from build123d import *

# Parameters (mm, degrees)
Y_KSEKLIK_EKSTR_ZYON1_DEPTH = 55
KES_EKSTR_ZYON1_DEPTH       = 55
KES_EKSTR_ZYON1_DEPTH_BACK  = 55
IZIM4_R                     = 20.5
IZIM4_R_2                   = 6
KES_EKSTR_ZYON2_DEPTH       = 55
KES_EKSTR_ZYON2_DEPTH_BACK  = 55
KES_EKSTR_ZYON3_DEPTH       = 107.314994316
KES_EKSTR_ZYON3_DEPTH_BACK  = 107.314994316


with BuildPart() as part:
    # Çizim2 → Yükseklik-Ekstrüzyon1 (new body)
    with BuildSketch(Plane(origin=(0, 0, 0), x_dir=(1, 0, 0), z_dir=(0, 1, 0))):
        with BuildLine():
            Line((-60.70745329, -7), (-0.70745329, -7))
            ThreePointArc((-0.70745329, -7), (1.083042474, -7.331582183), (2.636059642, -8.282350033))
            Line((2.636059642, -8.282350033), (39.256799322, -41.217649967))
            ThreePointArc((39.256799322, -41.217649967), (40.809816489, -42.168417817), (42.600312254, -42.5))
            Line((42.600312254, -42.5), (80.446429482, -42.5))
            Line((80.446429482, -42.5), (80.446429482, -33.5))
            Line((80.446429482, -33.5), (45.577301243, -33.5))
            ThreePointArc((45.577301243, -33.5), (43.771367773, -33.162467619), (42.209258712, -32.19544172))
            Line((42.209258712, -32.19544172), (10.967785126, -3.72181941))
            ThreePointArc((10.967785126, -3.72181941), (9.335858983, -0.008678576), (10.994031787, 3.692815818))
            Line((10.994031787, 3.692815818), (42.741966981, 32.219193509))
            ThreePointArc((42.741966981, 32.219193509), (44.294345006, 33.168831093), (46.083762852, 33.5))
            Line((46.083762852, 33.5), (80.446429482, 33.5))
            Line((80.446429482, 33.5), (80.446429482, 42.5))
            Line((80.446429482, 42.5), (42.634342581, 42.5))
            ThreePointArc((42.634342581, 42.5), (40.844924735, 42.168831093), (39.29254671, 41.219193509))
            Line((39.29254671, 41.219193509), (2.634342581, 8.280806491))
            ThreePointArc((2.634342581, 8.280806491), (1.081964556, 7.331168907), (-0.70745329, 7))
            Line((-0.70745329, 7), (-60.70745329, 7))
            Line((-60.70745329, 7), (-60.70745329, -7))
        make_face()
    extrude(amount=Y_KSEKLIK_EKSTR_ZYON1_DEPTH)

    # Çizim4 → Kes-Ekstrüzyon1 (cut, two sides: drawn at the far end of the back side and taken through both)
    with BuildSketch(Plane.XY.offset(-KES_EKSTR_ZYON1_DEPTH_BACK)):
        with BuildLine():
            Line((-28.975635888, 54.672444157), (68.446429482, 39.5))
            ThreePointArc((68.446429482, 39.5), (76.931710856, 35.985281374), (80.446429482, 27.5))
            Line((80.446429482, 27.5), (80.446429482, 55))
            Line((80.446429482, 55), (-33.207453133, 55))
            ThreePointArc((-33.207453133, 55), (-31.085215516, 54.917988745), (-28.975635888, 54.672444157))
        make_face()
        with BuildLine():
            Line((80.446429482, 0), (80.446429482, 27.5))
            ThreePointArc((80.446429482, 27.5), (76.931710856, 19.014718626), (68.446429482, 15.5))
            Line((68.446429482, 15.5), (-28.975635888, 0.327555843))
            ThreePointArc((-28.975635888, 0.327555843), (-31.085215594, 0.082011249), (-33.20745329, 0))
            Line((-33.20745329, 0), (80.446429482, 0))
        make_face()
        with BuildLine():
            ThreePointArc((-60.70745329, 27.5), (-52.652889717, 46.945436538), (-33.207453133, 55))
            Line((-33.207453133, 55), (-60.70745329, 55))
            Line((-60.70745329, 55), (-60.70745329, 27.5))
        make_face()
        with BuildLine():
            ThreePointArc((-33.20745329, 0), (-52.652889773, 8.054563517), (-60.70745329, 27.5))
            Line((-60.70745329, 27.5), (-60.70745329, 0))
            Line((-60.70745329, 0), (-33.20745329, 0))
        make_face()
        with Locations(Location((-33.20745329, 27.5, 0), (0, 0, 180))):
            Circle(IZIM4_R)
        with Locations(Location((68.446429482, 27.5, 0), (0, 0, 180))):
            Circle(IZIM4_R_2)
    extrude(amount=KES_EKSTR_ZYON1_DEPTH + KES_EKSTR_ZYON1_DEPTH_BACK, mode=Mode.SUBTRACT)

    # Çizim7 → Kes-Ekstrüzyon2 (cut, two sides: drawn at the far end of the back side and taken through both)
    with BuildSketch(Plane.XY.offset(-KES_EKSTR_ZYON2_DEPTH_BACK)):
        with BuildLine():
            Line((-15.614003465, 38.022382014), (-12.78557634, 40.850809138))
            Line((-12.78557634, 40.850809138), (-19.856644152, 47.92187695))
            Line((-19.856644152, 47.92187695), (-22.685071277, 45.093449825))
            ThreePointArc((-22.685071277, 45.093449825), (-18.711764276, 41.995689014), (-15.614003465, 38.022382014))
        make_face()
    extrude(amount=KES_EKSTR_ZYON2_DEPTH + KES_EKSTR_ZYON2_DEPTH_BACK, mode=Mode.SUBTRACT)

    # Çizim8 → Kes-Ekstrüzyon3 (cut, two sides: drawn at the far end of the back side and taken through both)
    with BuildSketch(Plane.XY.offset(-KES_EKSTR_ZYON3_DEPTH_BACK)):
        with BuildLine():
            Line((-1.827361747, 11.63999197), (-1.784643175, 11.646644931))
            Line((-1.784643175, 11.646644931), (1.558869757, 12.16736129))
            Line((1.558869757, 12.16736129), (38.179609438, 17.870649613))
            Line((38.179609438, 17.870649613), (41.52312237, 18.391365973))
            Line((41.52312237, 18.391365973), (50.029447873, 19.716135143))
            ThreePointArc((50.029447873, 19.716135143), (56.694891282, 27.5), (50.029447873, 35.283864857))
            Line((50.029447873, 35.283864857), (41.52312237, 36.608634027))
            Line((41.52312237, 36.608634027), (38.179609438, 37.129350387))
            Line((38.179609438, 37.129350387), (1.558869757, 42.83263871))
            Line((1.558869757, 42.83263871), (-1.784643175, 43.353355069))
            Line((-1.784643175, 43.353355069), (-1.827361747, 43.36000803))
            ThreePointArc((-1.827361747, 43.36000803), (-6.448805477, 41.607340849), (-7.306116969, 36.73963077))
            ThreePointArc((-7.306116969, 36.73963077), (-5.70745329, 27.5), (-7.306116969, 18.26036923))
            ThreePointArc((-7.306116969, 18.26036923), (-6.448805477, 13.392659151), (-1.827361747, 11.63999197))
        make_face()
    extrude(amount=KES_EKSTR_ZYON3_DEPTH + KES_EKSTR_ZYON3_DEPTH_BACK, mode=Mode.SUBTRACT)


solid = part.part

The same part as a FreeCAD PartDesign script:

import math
import FreeCAD as App
import Part
import Sketcher

V = App.Vector
Q = App.Units.Quantity

doc = App.newDocument("Part")
body = doc.addObject("PartDesign::Body", "Body")

# Sketch on XZ plane
sketch1 = doc.addObject("Sketcher::SketchObject", "Sketch")
body.addObject(sketch1)
sketch1.AttachmentSupport = (doc.XZ_Plane, [""])
sketch1.MapMode = "FlatFace"
sketch1.addGeometry([
    Part.LineSegment(V(-60.7, 7, 0), V(-0.7, 7, 0)),  # 0
    Part.ArcOfCircle(Part.Circle(V(-0.7, 12, 0), V(0, 0, 1), 5), math.radians(-90), math.radians(-48)),  # 1
    Part.LineSegment(V(2.6, 8.3, 0), V(39.3, 41.2, 0)),  # 2
    Part.ArcOfCircle(Part.Circle(V(42.6, 37.5, 0), V(0, 0, 1), 5), math.radians(90), math.radians(132)),  # 3
    Part.LineSegment(V(42.6, 42.5, 0), V(80.4, 42.5, 0)),  # 4
    Part.LineSegment(V(80.4, 42.5, 0), V(80.4, 33.5, 0)),  # 5
    Part.LineSegment(V(80.4, 33.5, 0), V(45.6, 33.5, 0)),  # 6
    Part.ArcOfCircle(Part.Circle(V(45.6, 28.5, 0), V(0, 0, 1), 5), math.radians(90), math.radians(132)),  # 7
    Part.LineSegment(V(42.2, 32.2, 0), V(11, 3.7, 0)),  # 8
    Part.ArcOfCircle(Part.Circle(V(14.3, 0, 0), V(0, 0, 1), 5), math.radians(132), math.radians(228)),  # 9
    Part.LineSegment(V(11, -3.7, 0), V(42.7, -32.2, 0)),  # 10
    Part.ArcOfCircle(Part.Circle(V(46.1, -28.5, 0), V(0, 0, 1), 5), math.radians(-132), math.radians(-90)),  # 11
    Part.LineSegment(V(46.1, -33.5, 0), V(80.4, -33.5, 0)),  # 12
    Part.LineSegment(V(80.4, -33.5, 0), V(80.4, -42.5, 0)),  # 13
    Part.LineSegment(V(80.4, -42.5, 0), V(42.6, -42.5, 0)),  # 14
    Part.ArcOfCircle(Part.Circle(V(42.6, -37.5, 0), V(0, 0, 1), 5), math.radians(-132), math.radians(-90)),  # 15
    Part.LineSegment(V(39.3, -41.2, 0), V(2.6, -8.3, 0)),  # 16
    Part.ArcOfCircle(Part.Circle(V(-0.7, -12, 0), V(0, 0, 1), 5), math.radians(48), math.radians(90)),  # 17
    Part.LineSegment(V(-0.7, -7, 0), V(-60.7, -7, 0)),  # 18
    Part.LineSegment(V(-60.7, -7, 0), V(-60.7, 7, 0)),  # 19
], False)
sketch1.addConstraint([
    Sketcher.Constraint("Tangent", 0, 2, 1, 1),
    Sketcher.Constraint("Tangent", 1, 2, 2, 1),
    Sketcher.Constraint("Tangent", 2, 2, 3, 2),
    Sketcher.Constraint("Tangent", 3, 1, 4, 1),
    Sketcher.Constraint("Coincident", 4, 2, 5, 1),
    Sketcher.Constraint("Coincident", 5, 2, 6, 1),
    Sketcher.Constraint("Tangent", 6, 2, 7, 1),
    Sketcher.Constraint("Tangent", 7, 2, 8, 1),
    Sketcher.Constraint("Tangent", 8, 2, 9, 1),
    Sketcher.Constraint("Tangent", 9, 2, 10, 1),
    Sketcher.Constraint("Tangent", 10, 2, 11, 1),
    Sketcher.Constraint("Tangent", 11, 2, 12, 1),
    Sketcher.Constraint("Coincident", 12, 2, 13, 1),
    Sketcher.Constraint("Coincident", 13, 2, 14, 1),
    Sketcher.Constraint("Tangent", 14, 2, 15, 2),
    Sketcher.Constraint("Tangent", 15, 1, 16, 1),
    Sketcher.Constraint("Tangent", 16, 2, 17, 1),
    Sketcher.Constraint("Tangent", 17, 2, 18, 1),
    Sketcher.Constraint("Coincident", 18, 2, 19, 1),
    Sketcher.Constraint("Coincident", 19, 2, 0, 1),
    Sketcher.Constraint("Horizontal", 0),
    Sketcher.Constraint("Horizontal", 4),
    Sketcher.Constraint("Vertical", 5),
    Sketcher.Constraint("Horizontal", 6),
    Sketcher.Constraint("Horizontal", 12),
    Sketcher.Constraint("Vertical", 13),
    Sketcher.Constraint("Horizontal", 14),
    Sketcher.Constraint("Horizontal", 18),
    Sketcher.Constraint("Vertical", 19),
    Sketcher.Constraint("Equal", 1, 3),
    Sketcher.Constraint("Equal", 3, 7),
    Sketcher.Constraint("Equal", 7, 9),
    Sketcher.Constraint("Equal", 9, 11),
    Sketcher.Constraint("Equal", 11, 15),
    Sketcher.Constraint("Equal", 15, 17),
    Sketcher.Constraint("Symmetric", 1, 3, 17, 3, -1),
    Sketcher.Constraint("Symmetric", 5, 2, 12, 2, -1),
    Sketcher.Constraint("Parallel", 10, 16),
    Sketcher.Constraint("Equal", 5, 13),
    Sketcher.Constraint("Radius", 1, 5.0),
    Sketcher.Constraint("DistanceX", 0, 1, 0, 2, 60.0),
    Sketcher.Constraint("DistanceY", 5, 2, 5, 1, 9.0),
    Sketcher.Constraint("DistanceY", 19, 1, 19, 2, 14.0),
    Sketcher.Constraint("DistanceY", 11, 3, 7, 3, 57.0),
    Sketcher.Constraint("DistanceX", 6, 2, 6, 1, 34.869128),
    Sketcher.Constraint("DistanceX", -1, 1, 7, 3, 45.577301),
    Sketcher.Constraint("DistanceX", -1, 1, 2, 2, 39.256799),
    Sketcher.Constraint("DistanceY", 1, 2, 2, 2, 32.9353),
    Sketcher.Constraint("DistanceX", 9, 3, 4, 2, 66.110602),
    Sketcher.Constraint("Distance", 10, 42.681209),
    Sketcher.Constraint("DistanceX", 12, 1, 12, 2, 34.362667),
])
pad1 = doc.addObject("PartDesign::Pad", "Pad")
body.addObject(pad1)
pad1.Profile = sketch1
pad1.Length = 55
pad1.Reversed = True

# Sketch on XY plane
sketch2 = doc.addObject("Sketcher::SketchObject", "Sketch001")
body.addObject(sketch2)
sketch2.AttachmentSupport = (doc.XY_Plane, [""])
sketch2.MapMode = "FlatFace"
sketch2.addGeometry([
    Part.LineSegment(V(-29, 54.7, 0), V(68.4, 39.5, 0)),  # 0
    Part.ArcOfCircle(Part.Circle(V(68.4, 27.5, 0), V(0, 0, 1), 12), math.radians(0), math.radians(90)),  # 1
    Part.LineSegment(V(80.4, 27.5, 0), V(80.4, 55, 0)),  # 2
    Part.LineSegment(V(80.4, 55, 0), V(-33.2, 55, 0)),  # 3
    Part.ArcOfCircle(Part.Circle(V(-33.2, 27.5, 0), V(0, 0, 1), 27.5), math.radians(81.15), math.radians(90)),  # 4
    Part.LineSegment(V(80.4, 0, 0), V(80.4, 27.5, 0)),  # 5
    Part.ArcOfCircle(Part.Circle(V(68.4, 27.5, 0), V(0, 0, 1), 12), math.radians(-90), math.radians(0)),  # 6
    Part.LineSegment(V(68.4, 15.5, 0), V(-29, 0.3, 0)),  # 7
    Part.ArcOfCircle(Part.Circle(V(-33.2, 27.5, 0), V(0, 0, 1), 27.5), math.radians(-90), math.radians(-81.15)),  # 8
    Part.LineSegment(V(-33.2, 0, 0), V(80.4, 0, 0)),  # 9
    Part.ArcOfCircle(Part.Circle(V(-33.2, 27.5, 0), V(0, 0, 1), 27.5), math.radians(90), math.radians(180)),  # 10
    Part.LineSegment(V(-33.2, 55, 0), V(-60.7, 55, 0)),  # 11
    Part.LineSegment(V(-60.7, 55, 0), V(-60.7, 27.5, 0)),  # 12
    Part.ArcOfCircle(Part.Circle(V(-33.2, 27.5, 0), V(0, 0, 1), 27.5), math.radians(180), math.radians(270)),  # 13
    Part.LineSegment(V(-60.7, 27.5, 0), V(-60.7, 0, 0)),  # 14
    Part.LineSegment(V(-60.7, 0, 0), V(-33.2, 0, 0)),  # 15
    Part.Circle(V(-33.2, 27.5, 0), V(0, 0, 1), 20.5),  # 16
    Part.Circle(V(68.4, 27.5, 0), V(0, 0, 1), 6),  # 17
], False)
sketch2.addConstraint([
    Sketcher.Constraint("Coincident", 0, 2, 1, 2),
    Sketcher.Constraint("Tangent", 1, 1, 2, 1),
    Sketcher.Constraint("Coincident", 2, 2, 3, 1),
    Sketcher.Constraint("Tangent", 3, 2, 4, 2),
    Sketcher.Constraint("Tangent", 4, 1, 0, 1),
    Sketcher.Constraint("Tangent", 5, 2, 6, 2),
    Sketcher.Constraint("Coincident", 6, 1, 7, 1),
    Sketcher.Constraint("Tangent", 7, 2, 8, 2),
    Sketcher.Constraint("Tangent", 8, 1, 9, 1),
    Sketcher.Constraint("Coincident", 9, 2, 5, 1),
    Sketcher.Constraint("Tangent", 10, 1, 11, 1),
    Sketcher.Constraint("Coincident", 11, 2, 12, 1),
    Sketcher.Constraint("Tangent", 12, 2, 10, 2),
    Sketcher.Constraint("Tangent", 13, 1, 14, 1),
    Sketcher.Constraint("Coincident", 14, 2, 15, 1),
    Sketcher.Constraint("Tangent", 15, 2, 13, 2),
    Sketcher.Constraint("Vertical", 2),
    Sketcher.Constraint("Horizontal", 3),
    Sketcher.Constraint("Vertical", 5),
    Sketcher.Constraint("Horizontal", 9),
    Sketcher.Constraint("Horizontal", 11),
    Sketcher.Constraint("Vertical", 12),
    Sketcher.Constraint("Vertical", 14),
    Sketcher.Constraint("Horizontal", 15),
    Sketcher.Constraint("Coincident", 6, 3, 1, 3),
    Sketcher.Constraint("Coincident", 8, 3, 4, 3),
    Sketcher.Constraint("Coincident", 10, 3, 4, 3),
    Sketcher.Constraint("Coincident", 13, 3, 4, 3),
    Sketcher.Constraint("Coincident", 16, 3, 4, 3),
    Sketcher.Constraint("Coincident", 17, 3, 1, 3),
    Sketcher.Constraint("Equal", 1, 6),
    Sketcher.Constraint("Equal", 4, 8),
    Sketcher.Constraint("Equal", 8, 10),
    Sketcher.Constraint("Equal", 10, 13),
    Sketcher.Constraint("PointOnObject", 8, 1, -1),
    Sketcher.Constraint("Horizontal", 1, 3, 4, 3),
    Sketcher.Constraint("Vertical", 17, 3, 0, 2),
    Sketcher.Constraint("Vertical", 0, 2, 6, 1),
    Sketcher.Constraint("Diameter", 16, 41.0),
    Sketcher.Constraint("Diameter", 17, 12.0),
    Sketcher.Constraint("Radius", 1, 12.0),
    Sketcher.Constraint("Radius", 4, 27.5),
    Sketcher.Constraint("Distance", 0, 98.59646),
    Sketcher.Constraint("DistanceX", -1, 1, 1, 3, 68.446429),
])
pocket1 = doc.addObject("PartDesign::Pocket", "Pocket")
body.addObject(pocket1)
pocket1.Profile = sketch2
pocket1.Type = "ThroughAll"
pocket1.Midplane = True

# Sketch on XY plane
sketch3 = doc.addObject("Sketcher::SketchObject", "Sketch002")
body.addObject(sketch3)
sketch3.AttachmentSupport = (doc.XY_Plane, [""])
sketch3.MapMode = "FlatFace"
sketch3.addGeometry([
    Part.LineSegment(V(-15.6, 38, 0), V(-12.8, 40.9, 0)),
    Part.LineSegment(V(-12.8, 40.9, 0), V(-19.9, 47.9, 0)),
    Part.LineSegment(V(-19.9, 47.9, 0), V(-22.7, 45.1, 0)),
    Part.ArcOfCircle(Part.Circle(V(-33.2, 27.5, 0), V(0, 0, 1), 20.5), math.radians(31), math.radians(59)),
], False)
sketch3.addConstraint([
    Sketcher.Constraint("Coincident", 0, 2, 1, 1),
    Sketcher.Constraint("Coincident", 1, 2, 2, 1),
    Sketcher.Constraint("Coincident", 2, 2, 3, 2),
    Sketcher.Constraint("Coincident", 3, 1, 0, 1),
    Sketcher.Constraint("Perpendicular", 0, 1),
    Sketcher.Constraint("Perpendicular", 1, 2),
    Sketcher.Constraint("Equal", 0, 2),
    Sketcher.Constraint("Radius", 3, 20.5),
    Sketcher.Constraint("Angle", 0, Q("45 deg")),
    Sketcher.Constraint("Distance", 0, 4.0),
    Sketcher.Constraint("Distance", 1, 10.0),
    Sketcher.Constraint("DistanceY", -1, 1, 3, 3, 27.5),
    Sketcher.Constraint("DistanceX", 2, 2, -1, 1, 22.685071),
])
pocket2 = doc.addObject("PartDesign::Pocket", "Pocket001")
body.addObject(pocket2)
pocket2.Profile = sketch3
pocket2.Type = "ThroughAll"
pocket2.Midplane = True

# Sketch on XY plane
sketch4 = doc.addObject("Sketcher::SketchObject", "Sketch003")
body.addObject(sketch4)
sketch4.AttachmentSupport = (doc.XY_Plane, [""])
sketch4.MapMode = "FlatFace"
sketch4.addGeometry([
    Part.LineSegment(V(-1.827, 11.64, 0), V(-1.785, 11.647, 0)),  # 0
    Part.LineSegment(V(-1.785, 11.647, 0), V(1.559, 12.167, 0)),  # 1
    Part.LineSegment(V(1.559, 12.167, 0), V(38.18, 17.871, 0)),  # 2
    Part.LineSegment(V(38.18, 17.871, 0), V(41.523, 18.391, 0)),  # 3
    Part.LineSegment(V(41.523, 18.391, 0), V(50.029, 19.716, 0)),  # 4
    Part.ArcOfCircle(Part.Circle(V(48.817, 27.5, 0), V(0, 0, 1), 7.878), math.radians(-81), math.radians(81)),  # 5
    Part.LineSegment(V(50.029, 35.284, 0), V(41.523, 36.609, 0)),  # 6
    Part.LineSegment(V(41.523, 36.609, 0), V(38.18, 37.129, 0)),  # 7
    Part.LineSegment(V(38.18, 37.129, 0), V(1.559, 42.833, 0)),  # 8
    Part.LineSegment(V(1.559, 42.833, 0), V(-1.785, 43.353, 0)),  # 9
    Part.LineSegment(V(-1.785, 43.353, 0), V(-1.827, 43.36, 0)),  # 10
    Part.ArcOfCircle(Part.Circle(V(-2.597, 38.42, 0), V(0, 0, 1), 5), math.radians(81), math.radians(200)),  # 11
    Part.ArcOfCircle(Part.Circle(V(-33.207, 27.5, 0), V(0, 0, 1), 27.5), math.radians(-20), math.radians(20)),  # 12
    Part.ArcOfCircle(Part.Circle(V(-2.597, 16.58, 0), V(0, 0, 1), 5), math.radians(160), math.radians(279)),  # 13
], False)
sketch4.addConstraint([
    Sketcher.Constraint("Coincident", 0, 2, 1, 1),
    Sketcher.Constraint("Coincident", 1, 2, 2, 1),
    Sketcher.Constraint("Coincident", 2, 2, 3, 1),
    Sketcher.Constraint("Coincident", 3, 2, 4, 1),
    Sketcher.Constraint("Tangent", 4, 2, 5, 1),
    Sketcher.Constraint("Tangent", 5, 2, 6, 1),
    Sketcher.Constraint("Coincident", 6, 2, 7, 1),
    Sketcher.Constraint("Coincident", 7, 2, 8, 1),
    Sketcher.Constraint("Coincident", 8, 2, 9, 1),
    Sketcher.Constraint("Coincident", 9, 2, 10, 1),
    Sketcher.Constraint("Tangent", 10, 2, 11, 1),
    Sketcher.Constraint("Tangent", 11, 2, 12, 2),
    Sketcher.Constraint("Tangent", 12, 1, 13, 1),
    Sketcher.Constraint("Tangent", 13, 2, 0, 1),
    Sketcher.Constraint("Equal", 11, 13),
    Sketcher.Constraint("Parallel", 0, 1),
    Sketcher.Constraint("Parallel", 1, 2),
    Sketcher.Constraint("Parallel", 2, 3),
    Sketcher.Constraint("Parallel", 3, 4),
    Sketcher.Constraint("Parallel", 6, 7),
    Sketcher.Constraint("Parallel", 7, 8),
    Sketcher.Constraint("Parallel", 8, 9),
    Sketcher.Constraint("Parallel", 9, 10),
    Sketcher.Constraint("Horizontal", 5, 3, 12, 3),
    Sketcher.Constraint("Vertical", 11, 3, 13, 3),
    Sketcher.Constraint("Vertical", 3, 2, 6, 2),
    Sketcher.Constraint("Vertical", 2, 2, 7, 2),
    Sketcher.Constraint("Vertical", 1, 2, 8, 2),
    Sketcher.Constraint("Vertical", 0, 2, 9, 2),
    Sketcher.Constraint("Equal", 1, 3),
    Sketcher.Constraint("Radius", 11, 5.0),
    Sketcher.Constraint("Radius", 12, 27.5),
    Sketcher.Constraint("DistanceY", -1, 1, 5, 3, 27.5),
    Sketcher.Constraint("Radius", 5, 7.877697),
    Sketcher.Constraint("DistanceY", 3, 2, 5, 2, 16.892499),
    Sketcher.Constraint("DistanceY", 5, 2, 11, 3, 3.135699),
    Sketcher.Constraint("DistanceY", 2, 2, 7, 2, 19.258701),
    Sketcher.Constraint("Distance", 2, 37.062192),
    Sketcher.Constraint("DistanceX", -1, 1, 1, 2, 1.55887),
    Sketcher.Constraint("DistanceY", -1, 1, 1, 2, 12.167361),
])
pocket3 = doc.addObject("PartDesign::Pocket", "Pocket002")
body.addObject(pocket3)
pocket3.Profile = sketch4
pocket3.Type = "ThroughAll"
pocket3.Midplane = True

doc.recompute()
